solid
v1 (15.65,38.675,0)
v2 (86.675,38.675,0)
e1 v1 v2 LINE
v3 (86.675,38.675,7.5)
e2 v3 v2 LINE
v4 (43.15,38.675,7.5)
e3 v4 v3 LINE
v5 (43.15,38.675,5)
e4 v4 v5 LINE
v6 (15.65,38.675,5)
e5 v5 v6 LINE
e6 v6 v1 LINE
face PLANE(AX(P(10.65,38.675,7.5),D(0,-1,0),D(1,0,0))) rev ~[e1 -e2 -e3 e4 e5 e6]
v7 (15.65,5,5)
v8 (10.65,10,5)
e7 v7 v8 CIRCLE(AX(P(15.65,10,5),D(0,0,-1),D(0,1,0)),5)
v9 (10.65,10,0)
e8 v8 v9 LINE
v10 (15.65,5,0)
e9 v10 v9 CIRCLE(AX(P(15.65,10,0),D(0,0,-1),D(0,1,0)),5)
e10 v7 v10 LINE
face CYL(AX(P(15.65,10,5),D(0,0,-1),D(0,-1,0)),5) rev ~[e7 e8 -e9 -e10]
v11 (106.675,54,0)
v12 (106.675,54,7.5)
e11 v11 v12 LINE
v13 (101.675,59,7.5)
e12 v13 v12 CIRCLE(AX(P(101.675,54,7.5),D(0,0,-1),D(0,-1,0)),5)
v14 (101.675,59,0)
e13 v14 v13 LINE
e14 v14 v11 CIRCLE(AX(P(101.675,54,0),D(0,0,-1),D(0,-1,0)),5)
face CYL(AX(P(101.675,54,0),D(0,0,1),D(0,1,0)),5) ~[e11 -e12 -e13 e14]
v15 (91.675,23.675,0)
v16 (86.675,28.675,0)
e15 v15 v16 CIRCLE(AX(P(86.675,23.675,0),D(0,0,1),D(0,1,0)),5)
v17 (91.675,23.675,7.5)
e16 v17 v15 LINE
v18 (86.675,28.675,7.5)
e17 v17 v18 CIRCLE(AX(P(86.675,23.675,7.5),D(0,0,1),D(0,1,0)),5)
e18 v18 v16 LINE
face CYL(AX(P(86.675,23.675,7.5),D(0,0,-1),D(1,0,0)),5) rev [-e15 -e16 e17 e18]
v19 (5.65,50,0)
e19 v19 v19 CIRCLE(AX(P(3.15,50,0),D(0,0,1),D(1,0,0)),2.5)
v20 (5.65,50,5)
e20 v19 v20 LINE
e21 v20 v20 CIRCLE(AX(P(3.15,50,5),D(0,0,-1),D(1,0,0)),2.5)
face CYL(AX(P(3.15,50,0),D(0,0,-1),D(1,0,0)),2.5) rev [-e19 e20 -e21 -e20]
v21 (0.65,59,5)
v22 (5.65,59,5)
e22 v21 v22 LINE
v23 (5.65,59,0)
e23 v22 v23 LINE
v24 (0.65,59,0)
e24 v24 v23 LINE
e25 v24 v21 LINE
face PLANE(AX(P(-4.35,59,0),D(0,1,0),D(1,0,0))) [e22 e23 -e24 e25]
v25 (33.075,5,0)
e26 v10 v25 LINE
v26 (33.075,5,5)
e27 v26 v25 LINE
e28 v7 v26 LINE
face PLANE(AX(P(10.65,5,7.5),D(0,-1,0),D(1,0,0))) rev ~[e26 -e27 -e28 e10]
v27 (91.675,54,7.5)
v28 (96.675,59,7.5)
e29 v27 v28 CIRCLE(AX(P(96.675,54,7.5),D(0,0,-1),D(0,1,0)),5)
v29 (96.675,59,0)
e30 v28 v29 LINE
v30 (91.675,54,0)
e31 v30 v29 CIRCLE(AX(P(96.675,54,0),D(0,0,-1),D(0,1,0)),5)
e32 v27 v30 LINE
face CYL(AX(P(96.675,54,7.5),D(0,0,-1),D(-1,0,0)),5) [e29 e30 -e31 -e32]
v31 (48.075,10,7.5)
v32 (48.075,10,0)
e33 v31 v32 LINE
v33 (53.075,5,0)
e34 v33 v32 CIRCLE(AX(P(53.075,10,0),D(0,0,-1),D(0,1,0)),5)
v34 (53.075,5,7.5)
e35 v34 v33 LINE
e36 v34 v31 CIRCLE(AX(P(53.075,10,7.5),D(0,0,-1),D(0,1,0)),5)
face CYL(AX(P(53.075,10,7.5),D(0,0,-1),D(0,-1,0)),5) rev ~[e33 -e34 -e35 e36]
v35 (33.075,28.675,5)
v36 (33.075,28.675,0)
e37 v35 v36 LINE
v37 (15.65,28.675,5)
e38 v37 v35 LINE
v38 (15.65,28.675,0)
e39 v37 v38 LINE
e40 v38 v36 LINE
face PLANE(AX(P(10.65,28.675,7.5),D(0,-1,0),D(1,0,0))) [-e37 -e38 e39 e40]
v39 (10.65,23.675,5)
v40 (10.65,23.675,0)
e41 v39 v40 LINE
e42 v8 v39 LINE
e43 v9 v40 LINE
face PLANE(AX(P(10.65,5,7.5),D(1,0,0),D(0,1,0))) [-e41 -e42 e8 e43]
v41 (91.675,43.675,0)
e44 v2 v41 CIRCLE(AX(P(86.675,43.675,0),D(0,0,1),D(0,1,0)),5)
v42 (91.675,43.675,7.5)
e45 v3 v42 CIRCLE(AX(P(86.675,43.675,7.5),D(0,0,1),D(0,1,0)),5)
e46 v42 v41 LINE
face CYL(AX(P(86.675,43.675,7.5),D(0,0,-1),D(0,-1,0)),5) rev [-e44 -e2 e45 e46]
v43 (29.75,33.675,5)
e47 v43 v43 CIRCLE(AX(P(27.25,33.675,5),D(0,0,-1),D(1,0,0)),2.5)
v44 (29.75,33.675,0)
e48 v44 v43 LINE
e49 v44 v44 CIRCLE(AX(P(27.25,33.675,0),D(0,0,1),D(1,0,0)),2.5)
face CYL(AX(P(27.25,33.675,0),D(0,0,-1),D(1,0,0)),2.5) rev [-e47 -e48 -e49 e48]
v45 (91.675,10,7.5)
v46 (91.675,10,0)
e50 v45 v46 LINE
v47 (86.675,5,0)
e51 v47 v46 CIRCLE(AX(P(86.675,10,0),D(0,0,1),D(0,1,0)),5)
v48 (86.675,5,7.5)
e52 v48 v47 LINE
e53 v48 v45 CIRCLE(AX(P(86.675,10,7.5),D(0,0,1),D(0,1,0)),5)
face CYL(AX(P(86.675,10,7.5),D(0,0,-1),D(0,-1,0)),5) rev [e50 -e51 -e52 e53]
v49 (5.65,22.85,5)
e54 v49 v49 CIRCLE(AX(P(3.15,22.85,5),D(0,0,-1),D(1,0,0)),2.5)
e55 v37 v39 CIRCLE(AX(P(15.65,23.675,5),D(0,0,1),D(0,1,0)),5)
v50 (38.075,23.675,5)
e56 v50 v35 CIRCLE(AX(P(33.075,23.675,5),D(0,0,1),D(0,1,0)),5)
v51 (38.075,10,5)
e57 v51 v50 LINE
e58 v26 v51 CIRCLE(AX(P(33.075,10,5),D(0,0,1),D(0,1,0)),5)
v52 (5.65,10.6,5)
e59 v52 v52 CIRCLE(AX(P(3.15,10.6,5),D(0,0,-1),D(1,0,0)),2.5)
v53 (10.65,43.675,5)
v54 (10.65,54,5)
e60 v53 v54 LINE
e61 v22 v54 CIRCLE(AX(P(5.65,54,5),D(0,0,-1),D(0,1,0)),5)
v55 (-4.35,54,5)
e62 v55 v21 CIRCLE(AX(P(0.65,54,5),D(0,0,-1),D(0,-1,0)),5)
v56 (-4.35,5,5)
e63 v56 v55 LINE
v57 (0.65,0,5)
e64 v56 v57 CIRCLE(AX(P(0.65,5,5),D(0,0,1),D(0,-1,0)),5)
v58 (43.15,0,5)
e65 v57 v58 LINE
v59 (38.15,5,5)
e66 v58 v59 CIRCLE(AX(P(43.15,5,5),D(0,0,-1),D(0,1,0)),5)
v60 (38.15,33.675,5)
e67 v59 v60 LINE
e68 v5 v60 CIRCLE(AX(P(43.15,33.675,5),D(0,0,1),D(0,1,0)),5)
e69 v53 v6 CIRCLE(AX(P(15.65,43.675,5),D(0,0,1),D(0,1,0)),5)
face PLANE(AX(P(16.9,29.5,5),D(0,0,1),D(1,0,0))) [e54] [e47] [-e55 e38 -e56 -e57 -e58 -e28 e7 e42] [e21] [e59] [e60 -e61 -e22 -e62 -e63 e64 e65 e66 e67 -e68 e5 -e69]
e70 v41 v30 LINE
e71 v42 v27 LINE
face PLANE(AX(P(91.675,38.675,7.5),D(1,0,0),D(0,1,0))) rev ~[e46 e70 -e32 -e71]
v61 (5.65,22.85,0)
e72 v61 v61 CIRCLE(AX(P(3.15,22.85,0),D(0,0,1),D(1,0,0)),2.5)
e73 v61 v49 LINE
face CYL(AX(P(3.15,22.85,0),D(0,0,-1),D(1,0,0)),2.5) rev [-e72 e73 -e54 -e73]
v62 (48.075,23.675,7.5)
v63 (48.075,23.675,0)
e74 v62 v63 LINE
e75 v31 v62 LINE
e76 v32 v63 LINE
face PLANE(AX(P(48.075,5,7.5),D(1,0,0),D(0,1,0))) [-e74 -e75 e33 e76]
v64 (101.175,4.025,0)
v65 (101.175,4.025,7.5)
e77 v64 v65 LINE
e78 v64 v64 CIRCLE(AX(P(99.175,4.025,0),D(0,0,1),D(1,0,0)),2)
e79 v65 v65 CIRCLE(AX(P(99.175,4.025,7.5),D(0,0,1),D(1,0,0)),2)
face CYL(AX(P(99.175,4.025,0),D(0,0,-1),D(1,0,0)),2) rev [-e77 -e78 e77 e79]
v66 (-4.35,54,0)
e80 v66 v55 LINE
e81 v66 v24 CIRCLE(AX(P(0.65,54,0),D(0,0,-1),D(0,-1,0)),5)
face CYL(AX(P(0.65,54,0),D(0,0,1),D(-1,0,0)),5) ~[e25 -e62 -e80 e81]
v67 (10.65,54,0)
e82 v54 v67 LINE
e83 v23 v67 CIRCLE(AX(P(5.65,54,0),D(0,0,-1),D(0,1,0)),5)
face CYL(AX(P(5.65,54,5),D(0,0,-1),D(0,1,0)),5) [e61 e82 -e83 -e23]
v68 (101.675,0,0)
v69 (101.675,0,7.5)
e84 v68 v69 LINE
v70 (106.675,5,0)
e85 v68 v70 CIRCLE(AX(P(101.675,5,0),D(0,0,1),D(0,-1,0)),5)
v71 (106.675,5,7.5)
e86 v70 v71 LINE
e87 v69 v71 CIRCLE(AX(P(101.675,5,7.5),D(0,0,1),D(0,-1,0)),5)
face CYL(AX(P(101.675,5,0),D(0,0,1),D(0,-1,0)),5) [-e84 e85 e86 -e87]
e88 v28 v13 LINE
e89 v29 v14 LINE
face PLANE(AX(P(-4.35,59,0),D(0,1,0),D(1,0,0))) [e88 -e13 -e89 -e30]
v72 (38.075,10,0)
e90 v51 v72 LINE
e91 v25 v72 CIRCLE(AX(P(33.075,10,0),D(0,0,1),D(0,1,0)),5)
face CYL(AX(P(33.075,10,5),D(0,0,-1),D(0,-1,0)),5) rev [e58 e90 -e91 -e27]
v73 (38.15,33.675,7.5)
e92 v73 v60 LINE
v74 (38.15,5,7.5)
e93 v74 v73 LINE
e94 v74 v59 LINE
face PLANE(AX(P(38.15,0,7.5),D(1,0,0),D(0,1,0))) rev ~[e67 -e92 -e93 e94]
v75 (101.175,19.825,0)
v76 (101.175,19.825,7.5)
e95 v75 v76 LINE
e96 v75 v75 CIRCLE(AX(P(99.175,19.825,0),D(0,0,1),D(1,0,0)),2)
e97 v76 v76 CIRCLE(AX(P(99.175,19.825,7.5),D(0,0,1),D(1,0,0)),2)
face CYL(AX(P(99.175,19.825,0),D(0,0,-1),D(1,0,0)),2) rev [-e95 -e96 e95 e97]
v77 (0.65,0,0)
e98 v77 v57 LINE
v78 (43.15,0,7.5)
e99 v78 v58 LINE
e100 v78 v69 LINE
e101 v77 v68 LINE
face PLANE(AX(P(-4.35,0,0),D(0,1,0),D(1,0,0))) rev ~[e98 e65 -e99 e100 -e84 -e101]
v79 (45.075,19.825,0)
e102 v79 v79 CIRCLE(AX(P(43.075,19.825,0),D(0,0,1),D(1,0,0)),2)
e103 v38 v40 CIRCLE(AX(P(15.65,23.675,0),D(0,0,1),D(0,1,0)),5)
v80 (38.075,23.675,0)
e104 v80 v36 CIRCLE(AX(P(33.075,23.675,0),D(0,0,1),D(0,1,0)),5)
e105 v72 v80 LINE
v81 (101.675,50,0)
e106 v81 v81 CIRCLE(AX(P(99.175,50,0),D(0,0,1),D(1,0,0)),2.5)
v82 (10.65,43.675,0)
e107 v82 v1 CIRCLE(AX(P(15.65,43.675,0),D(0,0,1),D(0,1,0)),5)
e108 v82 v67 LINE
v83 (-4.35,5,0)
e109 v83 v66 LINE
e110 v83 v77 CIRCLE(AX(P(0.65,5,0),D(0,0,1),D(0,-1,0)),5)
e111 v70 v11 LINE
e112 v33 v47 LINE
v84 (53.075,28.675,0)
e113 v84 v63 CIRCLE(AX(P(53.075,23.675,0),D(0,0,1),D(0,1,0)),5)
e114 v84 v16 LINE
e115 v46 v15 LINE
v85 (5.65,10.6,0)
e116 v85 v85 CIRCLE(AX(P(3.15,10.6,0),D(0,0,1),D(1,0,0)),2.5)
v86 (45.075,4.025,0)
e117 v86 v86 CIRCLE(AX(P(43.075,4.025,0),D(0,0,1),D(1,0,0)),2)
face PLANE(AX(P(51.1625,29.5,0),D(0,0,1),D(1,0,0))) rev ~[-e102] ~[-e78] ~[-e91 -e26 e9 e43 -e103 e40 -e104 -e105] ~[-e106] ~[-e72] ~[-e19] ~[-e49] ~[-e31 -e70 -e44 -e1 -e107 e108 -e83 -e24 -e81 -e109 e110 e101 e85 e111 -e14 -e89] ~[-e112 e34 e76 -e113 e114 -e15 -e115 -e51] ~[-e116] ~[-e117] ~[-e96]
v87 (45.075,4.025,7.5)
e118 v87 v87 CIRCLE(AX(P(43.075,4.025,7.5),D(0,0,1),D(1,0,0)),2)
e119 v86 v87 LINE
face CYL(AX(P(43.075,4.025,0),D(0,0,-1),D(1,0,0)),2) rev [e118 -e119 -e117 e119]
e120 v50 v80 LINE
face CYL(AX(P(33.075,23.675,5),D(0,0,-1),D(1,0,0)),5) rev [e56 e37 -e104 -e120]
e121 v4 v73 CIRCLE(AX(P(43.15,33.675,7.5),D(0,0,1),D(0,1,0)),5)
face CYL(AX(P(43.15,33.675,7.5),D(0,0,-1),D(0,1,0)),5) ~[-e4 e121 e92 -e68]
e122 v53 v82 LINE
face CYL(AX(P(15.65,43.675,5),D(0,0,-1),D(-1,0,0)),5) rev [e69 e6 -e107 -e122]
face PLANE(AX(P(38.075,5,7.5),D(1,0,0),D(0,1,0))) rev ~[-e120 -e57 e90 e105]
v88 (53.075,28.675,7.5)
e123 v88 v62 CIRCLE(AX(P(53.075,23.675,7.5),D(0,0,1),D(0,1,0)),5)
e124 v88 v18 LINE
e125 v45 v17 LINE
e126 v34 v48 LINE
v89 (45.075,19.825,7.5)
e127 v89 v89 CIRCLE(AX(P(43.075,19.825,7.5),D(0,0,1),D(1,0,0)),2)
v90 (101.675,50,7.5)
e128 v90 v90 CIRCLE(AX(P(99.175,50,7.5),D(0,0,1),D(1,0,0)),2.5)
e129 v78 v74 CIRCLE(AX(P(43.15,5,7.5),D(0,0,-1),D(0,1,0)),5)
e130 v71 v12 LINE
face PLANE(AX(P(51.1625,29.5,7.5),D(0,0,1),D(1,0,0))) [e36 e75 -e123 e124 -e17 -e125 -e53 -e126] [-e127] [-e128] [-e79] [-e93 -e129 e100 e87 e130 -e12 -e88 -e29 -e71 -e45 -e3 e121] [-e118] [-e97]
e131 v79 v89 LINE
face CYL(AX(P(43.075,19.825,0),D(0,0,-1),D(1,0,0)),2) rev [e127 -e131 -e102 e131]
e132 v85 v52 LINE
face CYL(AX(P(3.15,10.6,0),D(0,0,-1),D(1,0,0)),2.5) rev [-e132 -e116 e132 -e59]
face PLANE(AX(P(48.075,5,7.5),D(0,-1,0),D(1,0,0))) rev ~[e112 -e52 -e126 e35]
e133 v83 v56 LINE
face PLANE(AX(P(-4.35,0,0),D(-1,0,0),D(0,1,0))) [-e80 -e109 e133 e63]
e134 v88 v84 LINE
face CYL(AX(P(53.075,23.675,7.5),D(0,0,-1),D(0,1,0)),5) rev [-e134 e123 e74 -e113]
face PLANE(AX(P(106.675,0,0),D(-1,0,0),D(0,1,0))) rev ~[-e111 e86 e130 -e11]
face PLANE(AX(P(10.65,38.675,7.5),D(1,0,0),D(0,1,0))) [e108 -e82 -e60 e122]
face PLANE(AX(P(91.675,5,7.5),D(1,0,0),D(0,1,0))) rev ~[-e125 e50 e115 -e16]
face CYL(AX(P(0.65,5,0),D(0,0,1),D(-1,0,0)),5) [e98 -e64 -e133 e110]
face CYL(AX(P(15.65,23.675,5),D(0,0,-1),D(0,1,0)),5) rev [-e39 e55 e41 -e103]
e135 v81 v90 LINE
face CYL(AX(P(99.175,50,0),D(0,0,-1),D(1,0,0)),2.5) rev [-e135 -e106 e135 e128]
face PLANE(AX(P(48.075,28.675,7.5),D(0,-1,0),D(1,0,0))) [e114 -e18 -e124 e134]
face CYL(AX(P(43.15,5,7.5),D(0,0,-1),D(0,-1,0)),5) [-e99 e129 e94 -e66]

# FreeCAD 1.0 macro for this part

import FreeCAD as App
import Part
import Sketcher
from FreeCAD import Vector
Q = App.Units.Quantity


def edges_at(feature, points):
    """Names of the edges that pass closest to the given points."""
    edges = feature.Shape.Edges
    near = lambda p: min(range(len(edges)), key=lambda i: edges[i].distToShape(Part.Vertex(*p))[0])
    return sorted({f"Edge{near(p) + 1}" for p in points})


def add_polygon(sketch, points):
    """Adds a closed chain of lines whose ends are joined by coincident constraints."""
    first, n = sketch.GeometryCount, len(points)
    for a, b in zip(points, points[1:] + points[:1]):
        sketch.addGeometry(Part.LineSegment(App.Vector(*a, 0), App.Vector(*b, 0)), False)
    for i in range(n):
        sketch.addConstraint(Sketcher.Constraint("Coincident", first + i, 2, first + (i + 1) % n, 1))

doc = App.newDocument("Part")
body = doc.addObject("PartDesign::Body", "Body")

# Sketch on XY plane
sketch1 = doc.addObject("Sketcher::SketchObject", "Sketch")
body.addObject(sketch1)
sketch1.AttachmentSupport = (doc.XY_Plane, [""])
sketch1.MapMode = "FlatFace"
add_polygon(sketch1, [(-4.3, 59), (-4.3, 0), (106.7, 0), (106.7, 59)])  # lines 0-3
sketch1.addGeometry(Part.Circle(Vector(3.1, 10.6, 0), Vector(0, 0, 1), 2.5), False)  # 4
sketch1.addGeometry(Part.Circle(Vector(43.1, 4, 0), Vector(0, 0, 1), 2), False)  # 5
sketch1.addGeometry(Part.Circle(Vector(3.1, 22.9, 0), Vector(0, 0, 1), 2.5), False)  # 6
sketch1.addGeometry(Part.Circle(Vector(43.1, 19.8, 0), Vector(0, 0, 1), 2), False)  # 7
sketch1.addGeometry(Part.Circle(Vector(99.2, 4, 0), Vector(0, 0, 1), 2), False)  # 8
sketch1.addGeometry(Part.Circle(Vector(99.2, 19.8, 0), Vector(0, 0, 1), 2), False)  # 9
sketch1.addGeometry(Part.Circle(Vector(27.2, 33.7, 0), Vector(0, 0, 1), 2.5), False)  # 10
sketch1.addGeometry(Part.Circle(Vector(3.1, 50, 0), Vector(0, 0, 1), 2.5), False)  # 11
sketch1.addGeometry(Part.Circle(Vector(99.2, 50, 0), Vector(0, 0, 1), 2.5), False)  # 12
sketch1.addConstraint([
    Sketcher.Constraint("Vertical", 0),
    Sketcher.Constraint("Horizontal", 1),
    Sketcher.Constraint("Vertical", 2),
    Sketcher.Constraint("Horizontal", 3),
    Sketcher.Constraint("Equal", 4, 6),
    Sketcher.Constraint("Equal", 5, 7),
    Sketcher.Constraint("Equal", 7, 8),
    Sketcher.Constraint("Equal", 8, 9),
    Sketcher.Constraint("Equal", 6, 10),
    Sketcher.Constraint("Equal", 10, 11),
    Sketcher.Constraint("Equal", 11, 12),
    Sketcher.Constraint("PointOnObject", 0, 2, -1),
    Sketcher.Constraint("Horizontal", 5, 3, 8, 3),
    Sketcher.Constraint("Horizontal", 7, 3, 9, 3),
    Sketcher.Constraint("Horizontal", 11, 3, 12, 3),
    Sketcher.Constraint("Vertical", 4, 3, 6, 3),
    Sketcher.Constraint("Vertical", 5, 3, 7, 3),
    Sketcher.Constraint("Vertical", 8, 3, 9, 3),
    Sketcher.Constraint("Vertical", 6, 3, 11, 3),
    Sketcher.Constraint("Vertical", 9, 3, 12, 3),
    Sketcher.Constraint("Diameter", 4, Q("5 mm")),
    Sketcher.Constraint("Diameter", 5, Q("4 mm")),
    Sketcher.Constraint("DistanceY", 0, 2, 0, 1, Q("59 mm")),
    Sketcher.Constraint("DistanceY", -1, 1, 11, 3, Q("50 mm")),
    Sketcher.Constraint("DistanceY", -1, 1, 4, 3, Q("10.6 mm")),
    Sketcher.Constraint("DistanceY", 5, 3, 7, 3, Q("15.8 mm")),
    Sketcher.Constraint("DistanceX", 5, 3, 8, 3, Q("56.1 mm")),
    Sketcher.Constraint("DistanceX", 6, 3, 10, 3, Q("24.1 mm")),
    Sketcher.Constraint("DistanceX", 0, 2, 4, 3, Q("7.5 mm")),
    Sketcher.Constraint("DistanceX", 8, 3, 1, 2, Q("7.5 mm")),
    Sketcher.Constraint("DistanceX", 1, 1, 1, 2, Q("111.025 mm")),
    Sketcher.Constraint("DistanceX", -1, 1, 4, 3, Q("3.15 mm")),
    Sketcher.Constraint("DistanceY", -1, 1, 6, 3, Q("22.85 mm")),
    Sketcher.Constraint("DistanceY", 7, 3, 10, 3, Q("13.85 mm")),
    Sketcher.Constraint("DistanceY", -1, 1, 5, 3, Q("4.025 mm")),
])
pad1 = doc.addObject("PartDesign::Pad", "Pad")
body.addObject(pad1)
pad1.Profile = sketch1
pad1.Length = 7.5

# Sketch on XY plane
sketch2 = doc.addObject("Sketcher::SketchObject", "Sketch001")
body.addObject(sketch2)
sketch2.AttachmentSupport = (doc.XY_Plane, [""])
sketch2.MapMode = "FlatFace"
sketch2.AttachmentOffset = App.Placement(Vector(0, 0, 7.5), App.Rotation())
add_polygon(sketch2, [(-4, 59), (-4, 0), (38, 0), (38, 59)])  # lines 0-3
sketch2.addConstraint([
    Sketcher.Constraint("Vertical", 0),
    Sketcher.Constraint("Horizontal", 1),
    Sketcher.Constraint("Vertical", 2),
    Sketcher.Constraint("Horizontal", 3),
    Sketcher.Constraint("PointOnObject", 0, 2, -1),
    Sketcher.Constraint("DistanceY", 0, 2, 0, 1, Q("59 mm")),
    Sketcher.Constraint("DistanceX", 1, 1, 1, 2, Q("42.5 mm")),
    Sketcher.Constraint("DistanceX", 0, 2, -1, 1, Q("4.35 mm")),
])
pocket1 = doc.addObject("PartDesign::Pocket", "Pocket")
body.addObject(pocket1)
pocket1.Profile = sketch2
pocket1.Length = 2.5

# Sketch on XY plane
sketch3 = doc.addObject("Sketcher::SketchObject", "Sketch002")
body.addObject(sketch3)
sketch3.AttachmentSupport = (doc.XY_Plane, [""])
sketch3.MapMode = "FlatFace"
sketch3.AttachmentOffset = App.Placement(Vector(0, 0, 7.5), App.Rotation())
add_polygon(sketch3, [(11, 59), (11, 39), (92, 39), (92, 59)])  # lines 0-3
add_polygon(sketch3, [(48, 29), (48, 5), (92, 5), (92, 29)])  # lines 4-7
add_polygon(sketch3, [(11, 29), (11, 5), (38, 5), (38, 29)])  # lines 8-11
sketch3.addConstraint([
    Sketcher.Constraint("Vertical", 0),
    Sketcher.Constraint("Horizontal", 1),
    Sketcher.Constraint("Vertical", 2),
    Sketcher.Constraint("Horizontal", 3),
    Sketcher.Constraint("Vertical", 4),
    Sketcher.Constraint("Horizontal", 5),
    Sketcher.Constraint("Vertical", 6),
    Sketcher.Constraint("Horizontal", 7),
    Sketcher.Constraint("Vertical", 8),
    Sketcher.Constraint("Horizontal", 9),
    Sketcher.Constraint("Vertical", 10),
    Sketcher.Constraint("Horizontal", 11),
    Sketcher.Constraint("Horizontal", 5, 2, 8, 2),
    Sketcher.Constraint("Horizontal", 7, 2, 10, 2),
    Sketcher.Constraint("Vertical", 2, 2, 5, 2),
    Sketcher.Constraint("Vertical", 3, 2, 8, 2),
    Sketcher.Constraint("DistanceX", 5, 1, 5, 2, Q("43.6 mm")),
    Sketcher.Constraint("DistanceY", -1, 1, 2, 2, Q("59 mm")),
    Sketcher.Constraint("DistanceY", -1, 1, 4, 2, Q("5 mm")),
    Sketcher.Constraint("DistanceY", 6, 2, 1, 2, Q("10 mm")),
    Sketcher.Constraint("DistanceX", 9, 2, 4, 2, Q("10 mm")),
    Sketcher.Constraint("DistanceX", 1, 1, 1, 2, Q("81.025 mm")),
    Sketcher.Constraint("DistanceY", 0, 2, 0, 1, Q("20.325 mm")),
    Sketcher.Constraint("DistanceX", -1, 1, 0, 2, Q("10.65 mm")),
])
pocket2 = doc.addObject("PartDesign::Pocket", "Pocket001")
body.addObject(pocket2)
pocket2.Profile = sketch3
pocket2.Type = "ThroughAll"
doc.recompute()

fillet = doc.addObject("PartDesign::Fillet", "Fillet")
body.addObject(fillet)
fillet.Base = (pocket2, edges_at(pocket2, [
    (106.675, 59, 3.75),
    (91.675, 59, 3.75),
    (91.675, 38.675, 3.75),
    (91.675, 28.675, 3.75),
    (91.675, 5, 3.75),
    (106.675, 0, 3.75),
    (48.075, 5, 3.75),
    (48.075, 28.675, 3.75),
    (38.075, 28.675, 2.5),
    (38.075, 5, 2.5),
    (38.15, 0, 6.25),
    (38.15, 38.675, 6.25),
    (10.65, 5, 2.5),
    (10.65, 28.675, 2.5),
    (10.65, 38.675, 2.5),
    (10.65, 59, 2.5),
    (-4.35, 59, 2.5),
    (-4.35, 0, 2.5),
]))
fillet.Radius = 5

doc.recompute()
